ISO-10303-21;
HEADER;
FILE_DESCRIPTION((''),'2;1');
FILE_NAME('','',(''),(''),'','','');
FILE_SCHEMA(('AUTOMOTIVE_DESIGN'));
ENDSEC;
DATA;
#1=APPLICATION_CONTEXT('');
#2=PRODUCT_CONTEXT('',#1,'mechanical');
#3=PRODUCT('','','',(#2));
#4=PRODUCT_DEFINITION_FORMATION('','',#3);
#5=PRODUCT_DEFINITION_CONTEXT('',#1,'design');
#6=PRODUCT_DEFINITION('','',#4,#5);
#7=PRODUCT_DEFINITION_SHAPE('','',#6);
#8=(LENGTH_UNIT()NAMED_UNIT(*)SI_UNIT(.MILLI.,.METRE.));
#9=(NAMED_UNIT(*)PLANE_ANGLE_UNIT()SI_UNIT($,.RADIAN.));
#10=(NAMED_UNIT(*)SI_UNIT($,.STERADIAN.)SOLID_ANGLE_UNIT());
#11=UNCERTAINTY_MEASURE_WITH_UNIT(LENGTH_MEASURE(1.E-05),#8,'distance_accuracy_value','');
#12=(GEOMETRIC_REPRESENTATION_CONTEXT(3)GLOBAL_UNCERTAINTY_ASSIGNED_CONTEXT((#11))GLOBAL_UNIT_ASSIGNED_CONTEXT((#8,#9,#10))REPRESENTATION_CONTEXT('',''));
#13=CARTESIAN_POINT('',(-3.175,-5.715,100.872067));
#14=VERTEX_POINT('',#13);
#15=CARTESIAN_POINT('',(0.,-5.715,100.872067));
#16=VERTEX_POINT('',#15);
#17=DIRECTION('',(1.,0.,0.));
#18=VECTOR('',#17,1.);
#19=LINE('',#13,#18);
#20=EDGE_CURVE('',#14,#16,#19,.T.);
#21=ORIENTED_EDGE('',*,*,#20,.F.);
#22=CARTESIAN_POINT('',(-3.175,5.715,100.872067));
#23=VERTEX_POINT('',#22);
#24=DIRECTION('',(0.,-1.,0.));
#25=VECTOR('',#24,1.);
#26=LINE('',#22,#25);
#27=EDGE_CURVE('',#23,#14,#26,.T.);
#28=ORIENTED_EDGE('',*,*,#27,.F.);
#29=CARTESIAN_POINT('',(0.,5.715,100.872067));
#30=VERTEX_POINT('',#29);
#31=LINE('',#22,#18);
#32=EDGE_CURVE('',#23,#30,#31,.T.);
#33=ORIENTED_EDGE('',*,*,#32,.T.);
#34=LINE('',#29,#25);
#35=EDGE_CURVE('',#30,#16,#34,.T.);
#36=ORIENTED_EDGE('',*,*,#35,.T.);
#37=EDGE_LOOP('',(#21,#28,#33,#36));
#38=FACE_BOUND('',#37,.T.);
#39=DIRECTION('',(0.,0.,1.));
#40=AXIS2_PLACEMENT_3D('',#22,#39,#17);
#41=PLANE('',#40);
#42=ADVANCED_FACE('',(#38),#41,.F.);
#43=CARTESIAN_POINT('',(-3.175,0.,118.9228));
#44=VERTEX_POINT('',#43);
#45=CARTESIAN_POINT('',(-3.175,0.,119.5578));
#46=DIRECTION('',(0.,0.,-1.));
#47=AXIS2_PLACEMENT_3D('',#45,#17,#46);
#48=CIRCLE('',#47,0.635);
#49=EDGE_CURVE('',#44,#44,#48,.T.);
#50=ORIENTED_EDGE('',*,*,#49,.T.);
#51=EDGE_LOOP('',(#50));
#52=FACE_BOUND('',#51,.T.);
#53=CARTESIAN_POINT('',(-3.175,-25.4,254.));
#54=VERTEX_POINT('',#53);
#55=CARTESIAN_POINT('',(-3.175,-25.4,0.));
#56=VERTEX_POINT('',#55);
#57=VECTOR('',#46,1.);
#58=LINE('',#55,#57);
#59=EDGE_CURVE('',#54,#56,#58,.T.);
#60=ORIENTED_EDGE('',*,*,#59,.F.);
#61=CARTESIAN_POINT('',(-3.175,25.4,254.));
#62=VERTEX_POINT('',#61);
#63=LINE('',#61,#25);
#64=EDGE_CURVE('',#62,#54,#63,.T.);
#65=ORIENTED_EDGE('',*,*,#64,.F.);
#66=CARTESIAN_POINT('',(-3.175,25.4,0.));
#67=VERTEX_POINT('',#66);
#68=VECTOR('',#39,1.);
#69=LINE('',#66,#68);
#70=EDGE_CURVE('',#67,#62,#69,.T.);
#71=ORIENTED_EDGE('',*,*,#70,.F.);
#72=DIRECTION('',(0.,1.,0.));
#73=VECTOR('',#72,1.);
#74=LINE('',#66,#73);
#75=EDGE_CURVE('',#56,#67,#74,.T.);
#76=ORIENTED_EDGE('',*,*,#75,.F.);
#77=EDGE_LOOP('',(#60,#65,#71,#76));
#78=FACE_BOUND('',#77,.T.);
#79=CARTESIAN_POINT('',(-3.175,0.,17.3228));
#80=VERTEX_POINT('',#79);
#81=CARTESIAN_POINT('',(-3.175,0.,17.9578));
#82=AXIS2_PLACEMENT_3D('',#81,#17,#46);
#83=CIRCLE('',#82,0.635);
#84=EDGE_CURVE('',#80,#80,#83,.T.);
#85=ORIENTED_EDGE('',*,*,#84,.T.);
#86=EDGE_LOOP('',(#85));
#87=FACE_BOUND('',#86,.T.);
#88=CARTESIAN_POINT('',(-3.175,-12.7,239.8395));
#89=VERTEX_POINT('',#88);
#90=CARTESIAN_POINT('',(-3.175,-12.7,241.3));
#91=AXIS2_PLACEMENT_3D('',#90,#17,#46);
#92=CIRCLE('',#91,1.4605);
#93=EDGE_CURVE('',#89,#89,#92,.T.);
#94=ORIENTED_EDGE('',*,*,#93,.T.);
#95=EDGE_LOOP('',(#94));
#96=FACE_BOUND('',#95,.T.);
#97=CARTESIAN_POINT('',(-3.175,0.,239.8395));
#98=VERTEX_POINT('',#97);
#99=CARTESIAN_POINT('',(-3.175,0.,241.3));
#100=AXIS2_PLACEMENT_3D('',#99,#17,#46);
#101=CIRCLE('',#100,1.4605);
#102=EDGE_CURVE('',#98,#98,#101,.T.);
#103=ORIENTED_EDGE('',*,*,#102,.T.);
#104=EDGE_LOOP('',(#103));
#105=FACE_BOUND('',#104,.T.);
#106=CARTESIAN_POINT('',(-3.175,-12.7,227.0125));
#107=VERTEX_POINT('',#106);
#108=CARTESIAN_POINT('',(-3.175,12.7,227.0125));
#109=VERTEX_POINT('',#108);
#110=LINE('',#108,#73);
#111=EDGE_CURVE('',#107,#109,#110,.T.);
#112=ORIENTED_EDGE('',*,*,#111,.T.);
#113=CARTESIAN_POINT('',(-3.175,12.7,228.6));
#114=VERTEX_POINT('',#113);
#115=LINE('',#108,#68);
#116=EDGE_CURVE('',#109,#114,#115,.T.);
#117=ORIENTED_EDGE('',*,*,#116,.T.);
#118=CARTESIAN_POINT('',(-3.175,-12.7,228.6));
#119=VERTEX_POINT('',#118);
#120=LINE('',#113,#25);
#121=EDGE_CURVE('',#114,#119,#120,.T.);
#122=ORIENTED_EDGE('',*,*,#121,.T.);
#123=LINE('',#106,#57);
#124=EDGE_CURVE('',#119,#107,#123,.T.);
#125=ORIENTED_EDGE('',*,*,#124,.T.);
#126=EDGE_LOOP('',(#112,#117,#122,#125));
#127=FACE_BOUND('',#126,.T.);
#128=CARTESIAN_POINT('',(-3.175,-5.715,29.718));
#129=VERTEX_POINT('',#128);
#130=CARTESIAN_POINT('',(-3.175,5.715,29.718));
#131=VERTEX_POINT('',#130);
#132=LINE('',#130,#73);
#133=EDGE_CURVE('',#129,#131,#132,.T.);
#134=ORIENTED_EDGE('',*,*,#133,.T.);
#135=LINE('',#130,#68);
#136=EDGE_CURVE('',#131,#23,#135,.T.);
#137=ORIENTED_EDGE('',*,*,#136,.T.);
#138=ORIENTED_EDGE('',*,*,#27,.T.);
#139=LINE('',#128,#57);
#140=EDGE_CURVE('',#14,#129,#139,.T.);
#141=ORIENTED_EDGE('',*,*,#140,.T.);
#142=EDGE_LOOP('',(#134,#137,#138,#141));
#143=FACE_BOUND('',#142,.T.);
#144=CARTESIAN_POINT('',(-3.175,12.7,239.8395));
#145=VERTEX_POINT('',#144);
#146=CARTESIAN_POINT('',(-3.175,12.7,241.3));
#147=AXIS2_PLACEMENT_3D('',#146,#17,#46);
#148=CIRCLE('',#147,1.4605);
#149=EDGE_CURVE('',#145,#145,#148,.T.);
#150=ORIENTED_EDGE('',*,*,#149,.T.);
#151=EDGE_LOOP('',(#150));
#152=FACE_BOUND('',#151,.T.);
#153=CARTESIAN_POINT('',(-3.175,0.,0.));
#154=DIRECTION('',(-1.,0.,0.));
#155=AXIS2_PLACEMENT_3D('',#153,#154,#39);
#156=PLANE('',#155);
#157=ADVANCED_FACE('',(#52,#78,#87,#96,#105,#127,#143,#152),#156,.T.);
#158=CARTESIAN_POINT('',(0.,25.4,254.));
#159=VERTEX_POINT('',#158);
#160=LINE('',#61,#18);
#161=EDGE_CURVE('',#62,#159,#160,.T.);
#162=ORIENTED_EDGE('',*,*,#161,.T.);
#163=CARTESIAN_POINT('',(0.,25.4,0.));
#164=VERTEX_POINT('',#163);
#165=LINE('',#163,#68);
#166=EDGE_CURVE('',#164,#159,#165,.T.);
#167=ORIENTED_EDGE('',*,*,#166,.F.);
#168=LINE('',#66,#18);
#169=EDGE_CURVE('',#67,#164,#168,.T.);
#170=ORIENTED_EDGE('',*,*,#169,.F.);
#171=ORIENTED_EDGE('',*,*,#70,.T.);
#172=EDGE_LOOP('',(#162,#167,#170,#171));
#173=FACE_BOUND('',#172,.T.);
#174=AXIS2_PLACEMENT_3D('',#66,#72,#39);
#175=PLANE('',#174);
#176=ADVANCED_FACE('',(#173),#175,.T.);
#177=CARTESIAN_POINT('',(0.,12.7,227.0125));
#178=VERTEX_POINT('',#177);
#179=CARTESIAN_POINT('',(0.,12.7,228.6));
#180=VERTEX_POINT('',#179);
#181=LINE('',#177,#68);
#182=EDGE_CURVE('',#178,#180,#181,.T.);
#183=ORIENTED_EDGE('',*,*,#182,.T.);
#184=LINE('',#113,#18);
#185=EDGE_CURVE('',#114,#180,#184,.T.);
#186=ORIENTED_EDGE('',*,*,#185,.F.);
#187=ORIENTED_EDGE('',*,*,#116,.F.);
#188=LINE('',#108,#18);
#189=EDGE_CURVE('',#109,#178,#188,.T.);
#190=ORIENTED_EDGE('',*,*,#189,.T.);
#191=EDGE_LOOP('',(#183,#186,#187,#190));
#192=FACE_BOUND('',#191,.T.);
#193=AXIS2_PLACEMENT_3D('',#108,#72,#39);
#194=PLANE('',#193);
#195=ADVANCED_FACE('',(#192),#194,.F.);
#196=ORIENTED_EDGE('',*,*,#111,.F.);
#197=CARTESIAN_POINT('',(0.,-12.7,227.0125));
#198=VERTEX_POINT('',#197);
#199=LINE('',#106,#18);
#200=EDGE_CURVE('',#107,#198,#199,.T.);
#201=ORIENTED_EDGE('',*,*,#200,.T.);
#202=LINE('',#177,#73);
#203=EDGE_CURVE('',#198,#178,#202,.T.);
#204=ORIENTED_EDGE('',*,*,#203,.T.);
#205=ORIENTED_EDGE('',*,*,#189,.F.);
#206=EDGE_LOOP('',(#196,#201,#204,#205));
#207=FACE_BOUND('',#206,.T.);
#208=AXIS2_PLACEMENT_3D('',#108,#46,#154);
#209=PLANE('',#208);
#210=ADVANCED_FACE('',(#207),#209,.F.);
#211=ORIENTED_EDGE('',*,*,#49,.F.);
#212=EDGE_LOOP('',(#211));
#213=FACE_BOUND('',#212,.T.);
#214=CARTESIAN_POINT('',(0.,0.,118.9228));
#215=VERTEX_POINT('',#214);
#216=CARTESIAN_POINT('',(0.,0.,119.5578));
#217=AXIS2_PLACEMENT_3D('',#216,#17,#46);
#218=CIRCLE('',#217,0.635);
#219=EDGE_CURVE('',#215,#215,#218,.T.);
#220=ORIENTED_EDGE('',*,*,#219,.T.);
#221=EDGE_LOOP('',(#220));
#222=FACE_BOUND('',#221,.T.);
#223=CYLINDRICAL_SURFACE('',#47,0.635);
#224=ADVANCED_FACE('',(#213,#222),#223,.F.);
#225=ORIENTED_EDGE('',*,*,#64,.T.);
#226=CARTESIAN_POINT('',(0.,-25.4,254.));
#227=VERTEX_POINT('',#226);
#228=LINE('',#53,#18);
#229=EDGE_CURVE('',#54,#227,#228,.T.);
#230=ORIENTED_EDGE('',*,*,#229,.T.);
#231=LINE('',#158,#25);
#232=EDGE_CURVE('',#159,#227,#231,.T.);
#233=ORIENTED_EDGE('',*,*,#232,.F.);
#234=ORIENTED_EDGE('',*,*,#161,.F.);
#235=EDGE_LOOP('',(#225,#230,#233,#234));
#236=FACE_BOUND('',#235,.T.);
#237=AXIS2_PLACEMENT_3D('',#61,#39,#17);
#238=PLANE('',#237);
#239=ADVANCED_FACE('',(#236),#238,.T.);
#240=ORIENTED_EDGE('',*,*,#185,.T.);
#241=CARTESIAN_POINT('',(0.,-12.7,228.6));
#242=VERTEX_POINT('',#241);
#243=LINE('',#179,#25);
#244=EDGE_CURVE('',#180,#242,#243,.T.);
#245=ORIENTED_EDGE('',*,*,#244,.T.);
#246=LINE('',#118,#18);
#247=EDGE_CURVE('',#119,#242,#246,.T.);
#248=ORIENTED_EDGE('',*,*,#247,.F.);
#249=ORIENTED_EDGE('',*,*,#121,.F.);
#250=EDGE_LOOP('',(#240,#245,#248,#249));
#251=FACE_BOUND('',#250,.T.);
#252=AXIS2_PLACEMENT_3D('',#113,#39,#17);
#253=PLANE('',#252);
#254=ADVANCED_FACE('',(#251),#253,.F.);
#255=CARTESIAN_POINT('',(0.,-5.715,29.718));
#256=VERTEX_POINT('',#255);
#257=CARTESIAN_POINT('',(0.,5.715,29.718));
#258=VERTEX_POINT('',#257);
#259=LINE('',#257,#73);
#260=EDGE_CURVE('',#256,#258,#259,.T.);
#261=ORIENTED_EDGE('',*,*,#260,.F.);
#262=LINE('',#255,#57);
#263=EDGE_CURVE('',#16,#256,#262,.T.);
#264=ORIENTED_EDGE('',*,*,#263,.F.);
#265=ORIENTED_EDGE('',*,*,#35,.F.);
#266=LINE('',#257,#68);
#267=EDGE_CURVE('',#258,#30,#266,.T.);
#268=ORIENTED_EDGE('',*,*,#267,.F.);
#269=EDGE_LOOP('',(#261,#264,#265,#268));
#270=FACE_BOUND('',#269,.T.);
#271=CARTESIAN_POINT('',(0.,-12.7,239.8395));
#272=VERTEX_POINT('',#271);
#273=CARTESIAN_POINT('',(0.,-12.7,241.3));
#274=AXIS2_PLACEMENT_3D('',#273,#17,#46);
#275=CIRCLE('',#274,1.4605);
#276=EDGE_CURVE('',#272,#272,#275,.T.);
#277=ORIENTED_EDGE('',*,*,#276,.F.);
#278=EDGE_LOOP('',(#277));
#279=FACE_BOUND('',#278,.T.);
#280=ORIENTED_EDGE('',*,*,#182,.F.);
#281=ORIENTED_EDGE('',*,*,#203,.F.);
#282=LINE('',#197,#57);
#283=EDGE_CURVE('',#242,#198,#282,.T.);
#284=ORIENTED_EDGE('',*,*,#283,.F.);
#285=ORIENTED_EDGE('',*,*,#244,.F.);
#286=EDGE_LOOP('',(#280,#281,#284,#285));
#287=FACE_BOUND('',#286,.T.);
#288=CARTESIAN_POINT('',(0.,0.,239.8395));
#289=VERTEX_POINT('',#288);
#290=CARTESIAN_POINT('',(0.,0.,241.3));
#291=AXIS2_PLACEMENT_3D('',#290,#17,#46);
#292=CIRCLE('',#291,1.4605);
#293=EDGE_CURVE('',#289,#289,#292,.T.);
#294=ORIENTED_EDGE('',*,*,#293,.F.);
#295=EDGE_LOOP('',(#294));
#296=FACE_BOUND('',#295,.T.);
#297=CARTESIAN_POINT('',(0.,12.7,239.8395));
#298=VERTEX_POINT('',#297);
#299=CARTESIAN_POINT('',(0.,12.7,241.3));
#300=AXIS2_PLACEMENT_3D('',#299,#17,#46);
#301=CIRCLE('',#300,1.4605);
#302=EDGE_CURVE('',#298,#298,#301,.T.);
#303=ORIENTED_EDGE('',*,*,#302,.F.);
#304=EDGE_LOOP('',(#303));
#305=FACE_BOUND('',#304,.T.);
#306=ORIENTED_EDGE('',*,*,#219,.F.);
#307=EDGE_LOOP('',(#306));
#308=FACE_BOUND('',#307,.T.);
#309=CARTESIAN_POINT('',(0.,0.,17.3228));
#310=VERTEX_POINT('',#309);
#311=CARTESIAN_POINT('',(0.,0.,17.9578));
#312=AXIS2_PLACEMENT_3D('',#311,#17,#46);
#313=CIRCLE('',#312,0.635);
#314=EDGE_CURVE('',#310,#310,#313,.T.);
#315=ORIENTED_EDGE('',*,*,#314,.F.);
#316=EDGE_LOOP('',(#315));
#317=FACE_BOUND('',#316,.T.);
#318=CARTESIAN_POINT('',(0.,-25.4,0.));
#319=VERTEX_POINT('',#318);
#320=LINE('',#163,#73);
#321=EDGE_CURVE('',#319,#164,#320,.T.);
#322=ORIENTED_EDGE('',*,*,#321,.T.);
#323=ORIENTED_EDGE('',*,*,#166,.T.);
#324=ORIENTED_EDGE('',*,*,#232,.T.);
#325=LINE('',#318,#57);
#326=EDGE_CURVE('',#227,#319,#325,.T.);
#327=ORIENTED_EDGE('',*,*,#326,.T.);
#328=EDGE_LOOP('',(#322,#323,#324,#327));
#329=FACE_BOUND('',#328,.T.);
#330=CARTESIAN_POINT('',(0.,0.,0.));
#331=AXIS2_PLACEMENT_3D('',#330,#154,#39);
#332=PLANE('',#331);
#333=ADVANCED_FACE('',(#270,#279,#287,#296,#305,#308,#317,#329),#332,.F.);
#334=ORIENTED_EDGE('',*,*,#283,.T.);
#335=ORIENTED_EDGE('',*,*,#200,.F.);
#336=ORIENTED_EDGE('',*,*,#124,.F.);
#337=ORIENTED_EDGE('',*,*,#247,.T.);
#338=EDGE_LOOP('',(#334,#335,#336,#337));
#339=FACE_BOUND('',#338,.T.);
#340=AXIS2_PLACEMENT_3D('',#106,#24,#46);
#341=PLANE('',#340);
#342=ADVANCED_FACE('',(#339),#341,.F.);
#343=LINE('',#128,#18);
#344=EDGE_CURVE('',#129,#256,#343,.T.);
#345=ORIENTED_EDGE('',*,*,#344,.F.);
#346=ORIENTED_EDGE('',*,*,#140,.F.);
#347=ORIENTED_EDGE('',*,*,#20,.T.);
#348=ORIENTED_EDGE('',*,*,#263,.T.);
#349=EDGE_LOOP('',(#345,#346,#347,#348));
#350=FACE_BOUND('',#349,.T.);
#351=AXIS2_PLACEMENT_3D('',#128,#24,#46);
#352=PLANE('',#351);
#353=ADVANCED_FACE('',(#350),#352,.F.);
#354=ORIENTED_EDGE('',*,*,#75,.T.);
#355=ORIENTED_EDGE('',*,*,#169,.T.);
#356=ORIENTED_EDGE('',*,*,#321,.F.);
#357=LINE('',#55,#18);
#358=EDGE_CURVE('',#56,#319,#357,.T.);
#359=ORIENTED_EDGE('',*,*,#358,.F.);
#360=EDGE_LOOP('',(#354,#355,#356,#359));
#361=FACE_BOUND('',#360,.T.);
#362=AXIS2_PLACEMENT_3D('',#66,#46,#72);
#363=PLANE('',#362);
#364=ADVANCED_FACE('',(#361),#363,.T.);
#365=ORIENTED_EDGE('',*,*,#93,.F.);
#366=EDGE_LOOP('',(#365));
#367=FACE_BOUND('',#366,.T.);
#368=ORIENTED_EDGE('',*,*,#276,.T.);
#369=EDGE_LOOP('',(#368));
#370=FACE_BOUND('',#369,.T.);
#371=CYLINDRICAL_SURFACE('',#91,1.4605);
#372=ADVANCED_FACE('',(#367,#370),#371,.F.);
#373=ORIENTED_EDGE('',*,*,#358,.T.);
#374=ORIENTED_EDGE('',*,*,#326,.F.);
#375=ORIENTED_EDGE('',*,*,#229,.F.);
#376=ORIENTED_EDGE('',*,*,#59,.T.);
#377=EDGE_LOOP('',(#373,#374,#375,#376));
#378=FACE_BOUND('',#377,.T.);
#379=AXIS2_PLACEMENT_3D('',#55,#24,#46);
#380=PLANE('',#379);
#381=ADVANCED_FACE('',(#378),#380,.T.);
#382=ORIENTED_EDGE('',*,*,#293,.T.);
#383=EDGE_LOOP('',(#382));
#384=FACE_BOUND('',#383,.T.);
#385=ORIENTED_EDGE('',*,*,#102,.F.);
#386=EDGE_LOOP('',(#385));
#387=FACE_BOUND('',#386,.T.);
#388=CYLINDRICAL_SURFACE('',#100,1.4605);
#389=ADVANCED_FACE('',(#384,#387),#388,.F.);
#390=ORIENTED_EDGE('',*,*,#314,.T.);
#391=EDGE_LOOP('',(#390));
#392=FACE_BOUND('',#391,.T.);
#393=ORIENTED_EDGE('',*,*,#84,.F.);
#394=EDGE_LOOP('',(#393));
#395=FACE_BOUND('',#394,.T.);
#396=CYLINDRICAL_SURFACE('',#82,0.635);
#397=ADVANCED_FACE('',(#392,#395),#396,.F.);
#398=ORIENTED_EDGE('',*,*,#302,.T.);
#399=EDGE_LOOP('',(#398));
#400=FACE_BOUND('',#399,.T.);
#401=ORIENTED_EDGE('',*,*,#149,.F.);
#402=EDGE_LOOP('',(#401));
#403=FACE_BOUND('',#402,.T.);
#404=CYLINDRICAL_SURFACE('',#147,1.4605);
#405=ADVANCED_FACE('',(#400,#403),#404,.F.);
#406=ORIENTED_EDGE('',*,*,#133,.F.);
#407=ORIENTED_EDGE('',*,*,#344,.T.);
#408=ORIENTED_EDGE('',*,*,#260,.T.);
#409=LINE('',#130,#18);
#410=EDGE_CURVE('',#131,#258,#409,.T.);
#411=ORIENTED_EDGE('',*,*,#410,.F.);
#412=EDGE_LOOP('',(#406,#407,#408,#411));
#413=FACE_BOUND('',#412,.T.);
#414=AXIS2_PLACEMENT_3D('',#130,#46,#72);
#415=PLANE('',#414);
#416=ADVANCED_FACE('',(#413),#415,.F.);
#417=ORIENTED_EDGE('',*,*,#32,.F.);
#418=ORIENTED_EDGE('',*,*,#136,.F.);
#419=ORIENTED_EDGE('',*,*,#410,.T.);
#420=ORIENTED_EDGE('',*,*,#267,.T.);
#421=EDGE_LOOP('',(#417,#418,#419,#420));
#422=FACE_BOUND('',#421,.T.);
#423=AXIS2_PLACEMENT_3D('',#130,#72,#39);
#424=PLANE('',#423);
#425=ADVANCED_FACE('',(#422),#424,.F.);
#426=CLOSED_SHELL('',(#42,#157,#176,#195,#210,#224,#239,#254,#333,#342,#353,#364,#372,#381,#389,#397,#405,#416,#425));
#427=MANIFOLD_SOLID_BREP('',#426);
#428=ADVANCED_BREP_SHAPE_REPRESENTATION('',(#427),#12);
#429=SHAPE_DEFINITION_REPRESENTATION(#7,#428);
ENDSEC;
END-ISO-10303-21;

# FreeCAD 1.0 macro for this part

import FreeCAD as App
import Part
import Sketcher

V = App.Vector
Q = App.Units.Quantity


def add_polygon(sketch, points):
    """Adds a closed chain of lines whose ends are joined by coincident constraints."""
    first, n = sketch.GeometryCount, len(points)
    for a, b in zip(points, points[1:] + points[:1]):
        sketch.addGeometry(Part.LineSegment(App.Vector(*a, 0), App.Vector(*b, 0)), False)
    for i in range(n):
        sketch.addConstraint(Sketcher.Constraint("Coincident", first + i, 2, first + (i + 1) % n, 1))

doc = App.newDocument("Part")
body = doc.addObject("PartDesign::Body", "Body")

# Sketch on YZ plane
sketch1 = doc.addObject("Sketcher::SketchObject", "Sketch")
body.addObject(sketch1)
sketch1.AttachmentSupport = (doc.YZ_Plane, [""])
sketch1.MapMode = "FlatFace"
add_polygon(sketch1, [(25.4, 254), (-25.4, 254), (-25.4, 0), (25.4, 0)])  # lines 0-3
sketch1.addGeometry(Part.Circle(V(-12.7, 241.3, 0), V(0, 0, 1), 1.5), False)  # 4
sketch1.addGeometry(Part.Circle(V(0, 241.3, 0), V(0, 0, 1), 1.5), False)  # 5
add_polygon(sketch1, [(-12.7, 227), (-12.7, 228.6), (12.7, 228.6), (12.7, 227)])  # lines 6-9
sketch1.addGeometry(Part.Circle(V(12.7, 241.3, 0), V(0, 0, 1), 1.5), False)  # 10
sketch1.addGeometry(Part.Circle(V(0, 119.6, 0), V(0, 0, 1), 0.6), False)  # 11
add_polygon(sketch1, [(-5.7, 29.7), (-5.7, 100.9), (5.7, 100.9), (5.7, 29.7)])  # lines 12-15
sketch1.addGeometry(Part.Circle(V(0, 18, 0), V(0, 0, 1), 0.6), False)  # 16
sketch1.addConstraint([
    Sketcher.Constraint("Horizontal", 0),
    Sketcher.Constraint("Vertical", 1),
    Sketcher.Constraint("Horizontal", 2),
    Sketcher.Constraint("Vertical", 3),
    Sketcher.Constraint("Vertical", 6),
    Sketcher.Constraint("Horizontal", 7),
    Sketcher.Constraint("Vertical", 8),
    Sketcher.Constraint("Horizontal", 9),
    Sketcher.Constraint("Vertical", 12),
    Sketcher.Constraint("Horizontal", 13),
    Sketcher.Constraint("Vertical", 14),
    Sketcher.Constraint("Horizontal", 15),
    Sketcher.Constraint("Equal", 4, 5),
    Sketcher.Constraint("Equal", 5, 10),
    Sketcher.Constraint("Equal", 11, 16),
    Sketcher.Constraint("Symmetric", 1, 2, 2, 2, -1, 1),
    Sketcher.Constraint("Symmetric", 4, 3, 10, 3, -2),
    Sketcher.Constraint("PointOnObject", 5, 3, -2),
    Sketcher.Constraint("PointOnObject", 11, 3, -2),
    Sketcher.Constraint("PointOnObject", 16, 3, -2),
    Sketcher.Constraint("Horizontal", 4, 3, 5, 3),
    Sketcher.Constraint("Vertical", 4, 3, 6, 2),
    Sketcher.Constraint("Vertical", 10, 3, 7, 2),
    Sketcher.Constraint("Diameter", 11, Q("0.05 in")),
    Sketcher.Constraint("DistanceX", 0, 2, 0, 1, Q("2 in")),
    Sketcher.Constraint("DistanceX", 7, 1, 7, 2, Q("1 in")),
    Sketcher.Constraint("DistanceY", 1, 2, 1, 1, Q("10 in")),
    Sketcher.Constraint("Diameter", 4, Q("0.115 in")),
    Sketcher.Constraint("DistanceY", -1, 1, 6, 2, Q("9 in")),
    Sketcher.Constraint("DistanceY", 16, 3, 11, 3, Q("4 in")),
    Sketcher.Constraint("DistanceX", 13, 1, 13, 2, Q("0.45 in")),
    Sketcher.Constraint("DistanceY", -1, 1, 4, 3, Q("9.5 in")),
    Sketcher.Constraint("DistanceY", 6, 1, 6, 2, Q("0.0625 in")),
    Sketcher.Constraint("DistanceY", -1, 1, 14, 2, Q("1.17 in")),
    Sketcher.Constraint("DistanceY", -1, 1, 11, 3, Q("4.707 in")),
    Sketcher.Constraint("DistanceX", 12, 2, -1, 1, Q("0.225 in")),
    Sketcher.Constraint("DistanceY", 12, 1, 12, 2, Q("71.154067 mm")),
])
pad1 = doc.addObject("PartDesign::Pad", "Pad")
body.addObject(pad1)
pad1.Profile = sketch1
pad1.Length = Q("0.125 in")
pad1.Reversed = True

doc.recompute()
